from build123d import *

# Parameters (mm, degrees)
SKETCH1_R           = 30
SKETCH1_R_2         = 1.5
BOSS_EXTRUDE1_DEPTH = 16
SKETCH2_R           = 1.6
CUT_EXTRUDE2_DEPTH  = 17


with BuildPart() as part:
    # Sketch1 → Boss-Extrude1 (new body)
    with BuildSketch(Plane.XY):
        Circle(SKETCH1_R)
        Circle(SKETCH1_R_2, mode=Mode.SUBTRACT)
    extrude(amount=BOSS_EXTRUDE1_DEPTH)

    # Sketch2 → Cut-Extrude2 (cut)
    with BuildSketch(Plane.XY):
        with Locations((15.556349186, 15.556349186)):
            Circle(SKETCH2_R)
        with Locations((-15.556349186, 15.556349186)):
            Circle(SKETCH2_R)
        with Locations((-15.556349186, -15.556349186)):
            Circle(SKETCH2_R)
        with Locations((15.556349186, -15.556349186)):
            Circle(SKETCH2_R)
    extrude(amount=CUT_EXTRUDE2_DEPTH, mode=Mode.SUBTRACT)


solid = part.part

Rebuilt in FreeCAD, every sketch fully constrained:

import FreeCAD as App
import Part
import Sketcher

V = App.Vector

doc = App.newDocument("Part")
body = doc.addObject("PartDesign::Body", "Body")

# Sketch on XY plane
sketch1 = body.newObject("Sketcher::SketchObject", "Sketch")
sketch1.AttachmentSupport = (doc.getObject("XY_Plane"), [""])
sketch1.MapMode = "FlatFace"
sketch1.addGeometry([
    Part.Circle(V(0, 0, 0), V(0, 0, 1), 30),
    Part.Circle(V(0, 0, 0), V(0, 0, 1), 1.5),
], False)
sketch1.addConstraint([
    Sketcher.Constraint("Coincident", 0, 3, -1, 1),
    Sketcher.Constraint("Coincident", 1, 3, -1, 1),
    Sketcher.Constraint("Diameter", 0, 60.0),
    Sketcher.Constraint("Diameter", 1, 3.0),
])
pad1 = body.newObject("PartDesign::Pad", "Pad")
pad1.Profile = sketch1
pad1.Length = 16

# Sketch on XY plane
sketch2 = body.newObject("Sketcher::SketchObject", "Sketch001")
sketch2.AttachmentSupport = (doc.getObject("XY_Plane"), [""])
sketch2.MapMode = "FlatFace"
sketch2.addGeometry([
    Part.Circle(V(15.6, 15.6, 0), V(0, 0, 1), 1.6),
    Part.Circle(V(-15.6, 15.6, 0), V(0, 0, 1), 1.6),
    Part.Circle(V(-15.6, -15.6, 0), V(0, 0, 1), 1.6),
    Part.Circle(V(15.6, -15.6, 0), V(0, 0, 1), 1.6),
], False)
sketch2.addConstraint([
    Sketcher.Constraint("Equal", 0, 1),
    Sketcher.Constraint("Equal", 1, 2),
    Sketcher.Constraint("Equal", 2, 3),
    Sketcher.Constraint("Symmetric", 0, 3, 2, 3, -1, 1),
    Sketcher.Constraint("Symmetric", 1, 3, 3, 3, -1, 1),
    Sketcher.Constraint("Symmetric", 0, 3, 1, 3, -2),
    Sketcher.Constraint("Diameter", 0, 3.2),
    Sketcher.Constraint("DistanceX", 1, 3, 0, 3, 31.112698),
    Sketcher.Constraint("DistanceY", 2, 3, 1, 3, 31.112698),
])
pocket1 = body.newObject("PartDesign::Pocket", "Pocket")
pocket1.Profile = sketch2
pocket1.Length = 17
pocket1.Reversed = True

doc.recompute()
